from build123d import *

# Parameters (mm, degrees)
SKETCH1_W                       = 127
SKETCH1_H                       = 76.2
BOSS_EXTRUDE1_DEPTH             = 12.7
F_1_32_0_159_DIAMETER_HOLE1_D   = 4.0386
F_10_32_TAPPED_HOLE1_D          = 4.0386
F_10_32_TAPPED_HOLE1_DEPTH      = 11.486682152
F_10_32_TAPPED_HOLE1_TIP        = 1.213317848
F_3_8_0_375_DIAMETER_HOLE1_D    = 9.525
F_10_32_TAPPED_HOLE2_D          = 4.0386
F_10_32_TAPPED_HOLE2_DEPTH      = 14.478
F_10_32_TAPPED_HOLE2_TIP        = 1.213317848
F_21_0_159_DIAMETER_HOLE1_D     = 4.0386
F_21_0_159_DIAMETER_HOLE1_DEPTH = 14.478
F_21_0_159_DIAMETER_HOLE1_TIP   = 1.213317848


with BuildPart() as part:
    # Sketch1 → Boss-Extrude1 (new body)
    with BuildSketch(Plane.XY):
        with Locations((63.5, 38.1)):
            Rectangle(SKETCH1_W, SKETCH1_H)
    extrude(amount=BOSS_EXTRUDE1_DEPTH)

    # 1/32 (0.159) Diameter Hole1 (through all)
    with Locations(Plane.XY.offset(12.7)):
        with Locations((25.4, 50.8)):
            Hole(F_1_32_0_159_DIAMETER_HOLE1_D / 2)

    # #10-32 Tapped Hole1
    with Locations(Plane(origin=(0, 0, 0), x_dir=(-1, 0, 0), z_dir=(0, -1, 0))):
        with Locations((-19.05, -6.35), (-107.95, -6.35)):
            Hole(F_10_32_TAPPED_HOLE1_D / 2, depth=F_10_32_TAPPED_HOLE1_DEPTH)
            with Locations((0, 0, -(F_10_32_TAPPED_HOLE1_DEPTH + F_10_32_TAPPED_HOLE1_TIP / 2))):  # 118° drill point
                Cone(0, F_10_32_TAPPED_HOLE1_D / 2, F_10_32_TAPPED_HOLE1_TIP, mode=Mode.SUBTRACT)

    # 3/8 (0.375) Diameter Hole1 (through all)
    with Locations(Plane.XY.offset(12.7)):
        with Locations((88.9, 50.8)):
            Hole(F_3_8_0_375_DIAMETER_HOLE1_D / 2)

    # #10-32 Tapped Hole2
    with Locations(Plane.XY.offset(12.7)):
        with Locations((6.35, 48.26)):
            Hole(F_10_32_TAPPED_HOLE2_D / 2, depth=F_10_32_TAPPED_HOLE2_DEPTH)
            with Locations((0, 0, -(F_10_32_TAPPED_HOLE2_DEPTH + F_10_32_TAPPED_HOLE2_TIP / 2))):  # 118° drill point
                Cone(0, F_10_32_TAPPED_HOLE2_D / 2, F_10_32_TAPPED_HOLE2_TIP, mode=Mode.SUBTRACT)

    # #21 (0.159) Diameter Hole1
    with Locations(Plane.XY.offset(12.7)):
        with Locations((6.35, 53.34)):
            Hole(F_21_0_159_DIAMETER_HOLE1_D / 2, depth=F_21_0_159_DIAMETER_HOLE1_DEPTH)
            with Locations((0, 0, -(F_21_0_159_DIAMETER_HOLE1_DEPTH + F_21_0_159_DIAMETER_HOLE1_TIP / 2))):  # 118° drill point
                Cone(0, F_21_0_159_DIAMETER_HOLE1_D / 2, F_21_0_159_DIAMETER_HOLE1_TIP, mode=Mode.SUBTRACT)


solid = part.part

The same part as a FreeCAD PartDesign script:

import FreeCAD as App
import Part
import Sketcher
from FreeCAD import Vector
Q = App.Units.Quantity


def add_polygon(sketch, points):
    """Adds a closed chain of lines whose ends are joined by coincident constraints."""
    first, n = sketch.GeometryCount, len(points)
    for a, b in zip(points, points[1:] + points[:1]):
        sketch.addGeometry(Part.LineSegment(App.Vector(*a, 0), App.Vector(*b, 0)), False)
    for i in range(n):
        sketch.addConstraint(Sketcher.Constraint("Coincident", first + i, 2, first + (i + 1) % n, 1))

doc = App.newDocument("Part")
body = doc.addObject("PartDesign::Body", "Body")

sketch1 = doc.addObject("Sketcher::SketchObject", "Sketch")
body.addObject(sketch1)
sketch1.AttachmentSupport = (doc.XY_Plane, [""])
sketch1.MapMode = "FlatFace"
add_polygon(sketch1, [(0, 76), (0, 0), (127, 0), (127, 76)])
sketch1.addConstraint([
    Sketcher.Constraint("Vertical", 0),
    Sketcher.Constraint("Horizontal", 1),
    Sketcher.Constraint("Vertical", 2),
    Sketcher.Constraint("Horizontal", 3),
    Sketcher.Constraint("Coincident", 0, 2, -1, 1),
    Sketcher.Constraint("DistanceX", 1, 1, 1, 2, Q("5 in")),
    Sketcher.Constraint("DistanceY", 0, 2, 0, 1, Q("3 in")),
])
pad1 = doc.addObject("PartDesign::Pad", "Pad")
body.addObject(pad1)
pad1.Profile = sketch1
pad1.Length = Q("0.5 in")

sketch2 = doc.addObject("Sketcher::SketchObject", "Sketch001")
body.addObject(sketch2)
sketch2.AttachmentSupport = (doc.XY_Plane, [""])
sketch2.MapMode = "FlatFace"
sketch2.AttachmentOffset = App.Placement(Vector(0, 0, 0.5 * 25.4), App.Rotation())
sketch2.addGeometry(Part.Circle(Vector(25.4, 50.8, 0), Vector(0, 0, 1), 2), False)
sketch2.addConstraint([
    Sketcher.Constraint("Diameter", 0, Q("0.159 in")),
    Sketcher.Constraint("DistanceX", -1, 1, 0, 3, Q("1 in")),
    Sketcher.Constraint("DistanceY", -1, 1, 0, 3, Q("2 in")),
])
doc.recompute()
hole = doc.addObject("PartDesign::Hole", "Hole")
body.addObject(hole)
hole.Profile = sketch2
hole.ThreadType = "None"
hole.Diameter = Q("0.159 in")
hole.DepthType = "ThroughAll"

sketch3 = doc.addObject("Sketcher::SketchObject", "Sketch002")
body.addObject(sketch3)
sketch3.AttachmentSupport = (doc.XZ_Plane, [""])
sketch3.MapMode = "FlatFace"
sketch3.addGeometry([
    Part.Circle(Vector(19.1, 6.3, 0), Vector(0, 0, 1), 2),
    Part.Circle(Vector(108, 6.3, 0), Vector(0, 0, 1), 2),
], False)
sketch3.addConstraint([
    Sketcher.Constraint("Equal", 0, 1),
    Sketcher.Constraint("Horizontal", 0, 3, 1, 3),
    Sketcher.Constraint("Diameter", 0, Q("0.159 in")),
    Sketcher.Constraint("DistanceX", 0, 3, 1, 3, Q("3.5 in")),
    Sketcher.Constraint("DistanceX", -1, 1, 0, 3, Q("0.75 in")),
    Sketcher.Constraint("DistanceY", -1, 1, 0, 3, Q("0.25 in")),
])
doc.recompute()
hole2 = doc.addObject("PartDesign::Hole", "Hole001")
body.addObject(hole2)
hole2.Profile = sketch3
hole2.ThreadType = "None"
hole2.Diameter = Q("0.159 in")
hole2.DepthType = "Dimension"
hole2.Depth = 11.486682
hole2.DrillPoint = "Angled"
hole2.DrillPointAngle = 118

sketch4 = doc.addObject("Sketcher::SketchObject", "Sketch003")
body.addObject(sketch4)
sketch4.AttachmentSupport = (doc.XY_Plane, [""])
sketch4.MapMode = "FlatFace"
sketch4.AttachmentOffset = App.Placement(Vector(0, 0, 0.5 * 25.4), App.Rotation())
sketch4.addGeometry(Part.Circle(Vector(88.9, 50.8, 0), Vector(0, 0, 1), 4.8), False)
sketch4.addConstraint([
    Sketcher.Constraint("Diameter", 0, Q("0.375 in")),
    Sketcher.Constraint("DistanceY", -1, 1, 0, 3, Q("2 in")),
    Sketcher.Constraint("DistanceX", -1, 1, 0, 3, Q("3.5 in")),
])
doc.recompute()
hole3 = doc.addObject("PartDesign::Hole", "Hole002")
body.addObject(hole3)
hole3.Profile = sketch4
hole3.ThreadType = "None"
hole3.Diameter = Q("0.375 in")
hole3.DepthType = "ThroughAll"

sketch5 = doc.addObject("Sketcher::SketchObject", "Sketch004")
body.addObject(sketch5)
sketch5.AttachmentSupport = (doc.XY_Plane, [""])
sketch5.MapMode = "FlatFace"
sketch5.AttachmentOffset = App.Placement(Vector(0, 0, 0.5 * 25.4), App.Rotation())
sketch5.addGeometry(Part.Circle(Vector(6.3, 48.3, 0), Vector(0, 0, 1), 2), False)
sketch5.addConstraint([
    Sketcher.Constraint("Diameter", 0, Q("0.159 in")),
    Sketcher.Constraint("DistanceY", -1, 1, 0, 3, Q("1.9 in")),
    Sketcher.Constraint("DistanceX", -1, 1, 0, 3, Q("0.25 in")),
])
doc.recompute()
hole4 = doc.addObject("PartDesign::Hole", "Hole003")
body.addObject(hole4)
hole4.Profile = sketch5
hole4.ThreadType = "None"
hole4.Diameter = Q("0.159 in")
hole4.DepthType = "Dimension"
hole4.Depth = Q("0.57 in")
hole4.DrillPoint = "Angled"
hole4.DrillPointAngle = 118

sketch6 = doc.addObject("Sketcher::SketchObject", "Sketch005")
body.addObject(sketch6)
sketch6.AttachmentSupport = (doc.XY_Plane, [""])
sketch6.MapMode = "FlatFace"
sketch6.AttachmentOffset = App.Placement(Vector(0, 0, 0.5 * 25.4), App.Rotation())
sketch6.addGeometry(Part.Circle(Vector(6.3, 53.3, 0), Vector(0, 0, 1), 2), False)
sketch6.addConstraint([
    Sketcher.Constraint("Diameter", 0, Q("0.159 in")),
    Sketcher.Constraint("DistanceY", -1, 1, 0, 3, Q("2.1 in")),
    Sketcher.Constraint("DistanceX", -1, 1, 0, 3, Q("0.25 in")),
])
doc.recompute()
hole5 = doc.addObject("PartDesign::Hole", "Hole004")
body.addObject(hole5)
hole5.Profile = sketch6
hole5.ThreadType = "None"
hole5.Diameter = Q("0.159 in")
hole5.DepthType = "Dimension"
hole5.Depth = Q("0.57 in")
hole5.DrillPoint = "Angled"
hole5.DrillPointAngle = 118

doc.recompute()
